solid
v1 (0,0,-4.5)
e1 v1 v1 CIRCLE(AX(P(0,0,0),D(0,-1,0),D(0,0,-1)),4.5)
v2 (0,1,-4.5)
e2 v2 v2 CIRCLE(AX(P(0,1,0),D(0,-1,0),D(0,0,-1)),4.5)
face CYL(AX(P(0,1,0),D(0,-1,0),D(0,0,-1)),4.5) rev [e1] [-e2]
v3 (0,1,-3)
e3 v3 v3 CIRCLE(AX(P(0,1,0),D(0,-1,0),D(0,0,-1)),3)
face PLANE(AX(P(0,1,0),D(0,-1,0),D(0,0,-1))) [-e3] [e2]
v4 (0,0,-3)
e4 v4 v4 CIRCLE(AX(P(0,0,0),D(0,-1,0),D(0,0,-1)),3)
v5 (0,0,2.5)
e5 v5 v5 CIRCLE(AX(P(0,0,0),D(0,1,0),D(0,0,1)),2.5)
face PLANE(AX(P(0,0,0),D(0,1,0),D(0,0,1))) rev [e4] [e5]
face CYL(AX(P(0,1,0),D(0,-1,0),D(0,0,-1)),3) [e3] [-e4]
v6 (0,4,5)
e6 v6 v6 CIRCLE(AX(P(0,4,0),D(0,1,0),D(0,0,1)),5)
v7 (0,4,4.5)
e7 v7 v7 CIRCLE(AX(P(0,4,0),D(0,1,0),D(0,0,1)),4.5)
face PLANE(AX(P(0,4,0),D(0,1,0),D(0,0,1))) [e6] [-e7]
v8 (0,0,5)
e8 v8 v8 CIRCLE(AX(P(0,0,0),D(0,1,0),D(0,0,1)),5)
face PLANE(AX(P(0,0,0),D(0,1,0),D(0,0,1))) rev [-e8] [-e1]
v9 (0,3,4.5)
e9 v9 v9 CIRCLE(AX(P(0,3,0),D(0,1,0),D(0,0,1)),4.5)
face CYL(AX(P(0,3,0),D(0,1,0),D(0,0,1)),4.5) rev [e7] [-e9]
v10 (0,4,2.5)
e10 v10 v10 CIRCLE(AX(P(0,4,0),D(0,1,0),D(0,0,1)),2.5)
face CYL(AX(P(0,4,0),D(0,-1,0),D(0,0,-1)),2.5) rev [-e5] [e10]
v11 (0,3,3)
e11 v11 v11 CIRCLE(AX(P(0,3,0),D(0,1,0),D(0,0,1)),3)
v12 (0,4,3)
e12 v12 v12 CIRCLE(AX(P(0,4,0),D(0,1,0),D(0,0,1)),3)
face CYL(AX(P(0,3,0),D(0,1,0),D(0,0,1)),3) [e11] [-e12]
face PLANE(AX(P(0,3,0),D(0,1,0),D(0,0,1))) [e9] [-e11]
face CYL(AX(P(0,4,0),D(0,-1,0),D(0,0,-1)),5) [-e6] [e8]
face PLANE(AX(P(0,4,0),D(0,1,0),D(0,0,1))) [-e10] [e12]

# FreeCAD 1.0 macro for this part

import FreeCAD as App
import Part
import Sketcher
from FreeCAD import Vector
Q = App.Units.Quantity

doc = App.newDocument("Part")
body = doc.addObject("PartDesign::Body", "Body")

# Sketch on XZ plane
sketch1 = body.newObject("Sketcher::SketchObject", "Sketch")
sketch1.AttachmentSupport = (doc.getObject("XZ_Plane"), [""])
sketch1.MapMode = "FlatFace"
sketch1.addGeometry([
    Part.Circle(Vector(0, 0, 0), Vector(0, 0, 1), 5),
    Part.Circle(Vector(0, 0, 0), Vector(0, 0, 1), 2.5),
], False)
sketch1.addConstraint([
    Sketcher.Constraint("Coincident", 0, 3, -1, 1),
    Sketcher.Constraint("Coincident", 1, 3, -1, 1),
    Sketcher.Constraint("Diameter", 0, Q("10 mm")),
    Sketcher.Constraint("Diameter", 1, Q("5 mm")),
])
pad1 = body.newObject("PartDesign::Pad", "Pad")
pad1.Profile = sketch1
pad1.Length = 4
pad1.Reversed = True

# Sketch on XZ plane
sketch2 = body.newObject("Sketcher::SketchObject", "Sketch001")
sketch2.AttachmentSupport = (doc.getObject("XZ_Plane"), [""])
sketch2.MapMode = "FlatFace"
sketch2.AttachmentOffset = App.Placement(Vector(0, 0, -4), App.Rotation())
sketch2.addGeometry([
    Part.Circle(Vector(0, 0, 0), Vector(0, 0, 1), 4.5),
    Part.Circle(Vector(0, 0, 0), Vector(0, 0, 1), 3),
], False)
sketch2.addConstraint([
    Sketcher.Constraint("Coincident", 0, 3, -1, 1),
    Sketcher.Constraint("Coincident", 1, 3, -1, 1),
    Sketcher.Constraint("Diameter", 0, Q("9 mm")),
    Sketcher.Constraint("Diameter", 1, Q("6 mm")),
])
pocket1 = body.newObject("PartDesign::Pocket", "Pocket")
pocket1.Profile = sketch2
pocket1.Length = 1
pocket1.Reversed = True

# Sketch on XZ plane
sketch3 = body.newObject("Sketcher::SketchObject", "Sketch002")
sketch3.AttachmentSupport = (doc.getObject("XZ_Plane"), [""])
sketch3.MapMode = "FlatFace"
sketch3.AttachmentOffset = App.Placement(Vector(0, 0, -1), App.Rotation())
sketch3.addGeometry([
    Part.Circle(Vector(0, 0, 0), Vector(0, 0, 1), 4.5),
    Part.Circle(Vector(0, 0, 0), Vector(0, 0, 1), 3),
], False)
sketch3.addConstraint([
    Sketcher.Constraint("Coincident", 0, 3, -1, 1),
    Sketcher.Constraint("Coincident", 1, 3, -1, 1),
    Sketcher.Constraint("Diameter", 0, Q("9 mm")),
    Sketcher.Constraint("Diameter", 1, Q("6 mm")),
])
pocket2 = body.newObject("PartDesign::Pocket", "Pocket001")
pocket2.Profile = sketch3
pocket2.Length = 1
pocket2.Reversed = True

doc.recompute()
